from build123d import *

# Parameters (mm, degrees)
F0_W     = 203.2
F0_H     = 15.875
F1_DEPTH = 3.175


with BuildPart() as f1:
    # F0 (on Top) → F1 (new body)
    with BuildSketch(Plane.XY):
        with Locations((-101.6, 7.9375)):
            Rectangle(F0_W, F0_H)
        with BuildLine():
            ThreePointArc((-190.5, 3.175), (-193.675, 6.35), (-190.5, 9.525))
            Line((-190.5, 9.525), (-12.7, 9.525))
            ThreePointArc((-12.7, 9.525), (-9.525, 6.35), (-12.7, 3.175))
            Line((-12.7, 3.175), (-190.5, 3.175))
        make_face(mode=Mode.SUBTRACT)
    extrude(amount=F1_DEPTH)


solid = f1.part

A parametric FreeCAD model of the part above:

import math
import FreeCAD as App
import Part
import Sketcher
from FreeCAD import Vector
Q = App.Units.Quantity


def add_polygon(sketch, points):
    """Adds a closed chain of lines whose ends are joined by coincident constraints."""
    first, n = sketch.GeometryCount, len(points)
    for a, b in zip(points, points[1:] + points[:1]):
        sketch.addGeometry(Part.LineSegment(App.Vector(*a, 0), App.Vector(*b, 0)), False)
    for i in range(n):
        sketch.addConstraint(Sketcher.Constraint("Coincident", first + i, 2, first + (i + 1) % n, 1))

doc = App.newDocument("Part")
body = doc.addObject("PartDesign::Body", "Body")

sketch1 = body.newObject("Sketcher::SketchObject", "Sketch")
sketch1.AttachmentSupport = (doc.getObject("XY_Plane"), [""])
sketch1.MapMode = "FlatFace"
add_polygon(sketch1, [(-203.2, 15.9), (-203.2, 0), (0, 0), (0, 15.9)])
sketch1.addGeometry(Part.LineSegment(Vector(-12.7, 3.2, 0), Vector(-190.5, 3.2, 0)), False)
sketch1.addGeometry(Part.ArcOfCircle(Part.Circle(Vector(-190.5, 6.3, 0), Vector(0, 0, 1), 3.2), math.radians(90), math.radians(270)), False)
sketch1.addGeometry(Part.LineSegment(Vector(-190.5, 9.5, 0), Vector(-12.7, 9.5, 0)), False)
sketch1.addGeometry(Part.ArcOfCircle(Part.Circle(Vector(-12.7, 6.3, 0), Vector(0, 0, 1), 3.2), math.radians(-90), math.radians(90)), False)
sketch1.addConstraint([
    Sketcher.Constraint("Tangent", 4, 2, 5, 2),
    Sketcher.Constraint("Tangent", 5, 1, 6, 1),
    Sketcher.Constraint("Tangent", 6, 2, 7, 2),
    Sketcher.Constraint("Tangent", 7, 1, 4, 1),
    Sketcher.Constraint("Vertical", 0),
    Sketcher.Constraint("Horizontal", 1),
    Sketcher.Constraint("Vertical", 2),
    Sketcher.Constraint("Horizontal", 3),
    Sketcher.Constraint("Horizontal", 4),
    Sketcher.Constraint("Horizontal", 6),
    Sketcher.Constraint("Coincident", 1, 2, -1, 1),
    Sketcher.Constraint("DistanceX", 1, 1, 1, 2, Q("8 in")),
    Sketcher.Constraint("DistanceX", 4, 2, 4, 1, Q("7 in")),
    Sketcher.Constraint("Radius", 5, Q("0.125 in")),
    Sketcher.Constraint("DistanceX", 5, 3, -1, 1, Q("7.5 in")),
    Sketcher.Constraint("DistanceY", 4, 2, 3, 2, Q("0.5 in")),
    Sketcher.Constraint("DistanceY", 0, 2, 0, 1, Q("0.625 in")),
])
pad1 = body.newObject("PartDesign::Pad", "Pad")
pad1.Profile = sketch1
pad1.Length = Q("0.125 in")

doc.recompute()
